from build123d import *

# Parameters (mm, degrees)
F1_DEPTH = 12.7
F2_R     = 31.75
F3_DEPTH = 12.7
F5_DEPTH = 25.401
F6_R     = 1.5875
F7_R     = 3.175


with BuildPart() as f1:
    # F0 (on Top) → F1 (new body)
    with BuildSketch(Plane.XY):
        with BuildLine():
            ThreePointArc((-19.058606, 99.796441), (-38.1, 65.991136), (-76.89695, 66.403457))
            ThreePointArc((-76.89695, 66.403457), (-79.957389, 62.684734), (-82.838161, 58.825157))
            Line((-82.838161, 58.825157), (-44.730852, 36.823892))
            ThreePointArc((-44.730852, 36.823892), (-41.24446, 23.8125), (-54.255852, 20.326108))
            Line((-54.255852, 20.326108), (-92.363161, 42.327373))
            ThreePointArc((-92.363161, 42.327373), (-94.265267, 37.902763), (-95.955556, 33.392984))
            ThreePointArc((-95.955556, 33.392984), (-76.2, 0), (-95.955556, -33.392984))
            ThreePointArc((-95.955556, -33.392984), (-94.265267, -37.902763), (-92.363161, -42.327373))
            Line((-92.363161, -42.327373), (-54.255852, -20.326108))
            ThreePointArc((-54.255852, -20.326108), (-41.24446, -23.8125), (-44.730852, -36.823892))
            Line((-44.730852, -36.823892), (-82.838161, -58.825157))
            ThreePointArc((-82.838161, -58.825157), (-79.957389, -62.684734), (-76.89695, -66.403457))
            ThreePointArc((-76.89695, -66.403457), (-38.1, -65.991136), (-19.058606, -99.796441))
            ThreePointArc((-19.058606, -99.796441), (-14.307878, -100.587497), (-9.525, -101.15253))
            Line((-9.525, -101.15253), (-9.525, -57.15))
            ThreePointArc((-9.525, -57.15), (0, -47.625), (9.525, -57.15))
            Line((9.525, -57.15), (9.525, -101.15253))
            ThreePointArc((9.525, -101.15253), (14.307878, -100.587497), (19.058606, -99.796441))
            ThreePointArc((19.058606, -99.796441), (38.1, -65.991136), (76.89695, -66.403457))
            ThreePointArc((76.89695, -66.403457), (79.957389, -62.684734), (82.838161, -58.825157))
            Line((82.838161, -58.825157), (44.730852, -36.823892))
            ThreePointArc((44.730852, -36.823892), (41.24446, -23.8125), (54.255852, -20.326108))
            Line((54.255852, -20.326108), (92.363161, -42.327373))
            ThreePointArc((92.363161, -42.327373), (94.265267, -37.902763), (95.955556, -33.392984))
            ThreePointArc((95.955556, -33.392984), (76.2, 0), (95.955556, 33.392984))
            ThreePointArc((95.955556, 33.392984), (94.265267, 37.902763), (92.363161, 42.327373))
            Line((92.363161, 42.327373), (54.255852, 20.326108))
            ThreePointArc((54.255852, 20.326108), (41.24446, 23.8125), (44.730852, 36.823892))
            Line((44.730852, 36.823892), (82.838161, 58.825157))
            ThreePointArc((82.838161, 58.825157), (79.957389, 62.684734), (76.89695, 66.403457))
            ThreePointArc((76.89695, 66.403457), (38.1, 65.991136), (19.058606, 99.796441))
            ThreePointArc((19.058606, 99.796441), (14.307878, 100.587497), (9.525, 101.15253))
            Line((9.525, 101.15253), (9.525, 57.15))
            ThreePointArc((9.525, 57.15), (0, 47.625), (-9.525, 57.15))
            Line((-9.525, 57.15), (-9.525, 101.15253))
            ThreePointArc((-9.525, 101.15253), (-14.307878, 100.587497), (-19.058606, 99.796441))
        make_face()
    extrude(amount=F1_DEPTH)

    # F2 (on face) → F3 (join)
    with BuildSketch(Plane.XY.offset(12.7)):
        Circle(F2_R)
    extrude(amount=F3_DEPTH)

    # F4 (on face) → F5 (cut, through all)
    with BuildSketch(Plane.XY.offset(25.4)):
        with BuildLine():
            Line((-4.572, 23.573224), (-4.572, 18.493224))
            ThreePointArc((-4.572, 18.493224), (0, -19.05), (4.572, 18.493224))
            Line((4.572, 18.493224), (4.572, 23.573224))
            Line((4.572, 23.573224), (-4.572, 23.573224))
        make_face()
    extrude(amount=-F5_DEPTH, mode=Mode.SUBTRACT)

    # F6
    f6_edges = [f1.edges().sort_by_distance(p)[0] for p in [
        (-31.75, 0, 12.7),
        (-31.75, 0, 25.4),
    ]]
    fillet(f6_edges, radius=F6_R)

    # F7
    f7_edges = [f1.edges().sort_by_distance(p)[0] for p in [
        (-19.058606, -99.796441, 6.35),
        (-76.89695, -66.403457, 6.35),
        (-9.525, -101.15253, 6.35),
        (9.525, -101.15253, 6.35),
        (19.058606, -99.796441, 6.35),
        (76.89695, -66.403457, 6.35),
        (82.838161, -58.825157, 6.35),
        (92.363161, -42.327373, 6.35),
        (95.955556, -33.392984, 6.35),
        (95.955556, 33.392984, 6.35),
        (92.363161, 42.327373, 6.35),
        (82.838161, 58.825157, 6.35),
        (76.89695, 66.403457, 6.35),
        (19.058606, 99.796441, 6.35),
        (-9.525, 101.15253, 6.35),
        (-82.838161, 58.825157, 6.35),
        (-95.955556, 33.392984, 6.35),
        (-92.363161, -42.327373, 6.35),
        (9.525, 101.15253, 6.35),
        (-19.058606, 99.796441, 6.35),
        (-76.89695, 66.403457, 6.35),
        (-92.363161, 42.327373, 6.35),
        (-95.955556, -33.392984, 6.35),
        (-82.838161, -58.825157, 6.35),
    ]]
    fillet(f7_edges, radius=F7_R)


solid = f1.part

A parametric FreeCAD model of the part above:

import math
import FreeCAD as App
import Part
import Sketcher
from FreeCAD import Vector
Q = App.Units.Quantity


def edges_at(feature, points):
    """Names of the edges that pass closest to the given points."""
    edges = feature.Shape.Edges
    near = lambda p: min(range(len(edges)), key=lambda i: edges[i].distToShape(Part.Vertex(*p))[0])
    return sorted({f"Edge{near(p) + 1}" for p in points})

doc = App.newDocument("Part")
body = doc.addObject("PartDesign::Body", "Body")

sketch1 = body.newObject("Sketcher::SketchObject", "Sketch")
sketch1.AttachmentSupport = (doc.getObject("XY_Plane"), [""])
sketch1.MapMode = "FlatFace"
sketch1.addGeometry([
    Part.ArcOfCircle(Part.Circle(Vector(-57.15, 98.986704, 0), Vector(0, 0, 1), 38.1), math.radians(-121.217795), math.radians(1.217796)),
    Part.ArcOfCircle(Part.Circle(Vector(0.000293, -0.00023, 0), Vector(0, 0, 1), 101.600372), math.radians(139.188147), math.radians(144.620611)),
    Part.LineSegment(Vector(-82.838161, 58.825157, 0), Vector(-44.730852, 36.823892, 0)),
    Part.ArcOfCircle(Part.Circle(Vector(-49.493352, 28.575, 0), Vector(0, 0, 1), 9.525), math.radians(-120), math.radians(60)),
    Part.LineSegment(Vector(-54.255852, 20.326108, 0), Vector(-92.363161, 42.327373, 0)),
    Part.ArcOfCircle(Part.Circle(Vector(0.000225, -0.000096, 0), Vector(0, 0, 1), 101.600244), math.radians(155.379383), math.radians(160.811854)),
    Part.ArcOfCircle(Part.Circle(Vector(-114.3, 0, 0), Vector(0, 0, 1), 38.1), math.radians(-61.217796), math.radians(61.217796)),
    Part.ArcOfCircle(Part.Circle(Vector(0.000225, 0.000096, 0), Vector(0, 0, 1), 101.600244), math.radians(-160.811854), math.radians(-155.379383)),
    Part.LineSegment(Vector(-92.363161, -42.327373, 0), Vector(-54.255852, -20.326108, 0)),
    Part.ArcOfCircle(Part.Circle(Vector(-49.493352, -28.575, 0), Vector(0, 0, 1), 9.525), math.radians(-60), math.radians(120)),
    Part.LineSegment(Vector(-44.730852, -36.823892, 0), Vector(-82.838161, -58.825157, 0)),
    Part.ArcOfCircle(Part.Circle(Vector(0.000293, 0.00023, 0), Vector(0, 0, 1), 101.600372), math.radians(-144.620611), math.radians(-139.188147)),
    Part.ArcOfCircle(Part.Circle(Vector(-57.15, -98.986704, 0), Vector(0, 0, 1), 38.1), math.radians(-1.217796), math.radians(121.217795)),
    Part.ArcOfCircle(Part.Circle(Vector(0.000053, 0.000431, 0), Vector(0, 0, 1), 101.600434), math.radians(-100.811848), math.radians(-95.379386)),
    Part.LineSegment(Vector(-9.525, -101.15253, 0), Vector(-9.525, -57.15, 0)),
    Part.ArcOfCircle(Part.Circle(Vector(0, -57.15, 0), Vector(0, 0, 1), 9.525), math.radians(0), math.radians(180)),
    Part.LineSegment(Vector(9.525, -57.15, 0), Vector(9.525, -101.15253, 0)),
    Part.ArcOfCircle(Part.Circle(Vector(-0.000053, 0.000431, 0), Vector(0, 0, 1), 101.600434), math.radians(-84.620614), math.radians(-79.188152)),
    Part.ArcOfCircle(Part.Circle(Vector(57.15, -98.986704, 0), Vector(0, 0, 1), 38.1), math.radians(58.782205), math.radians(181.217796)),
    Part.ArcOfCircle(Part.Circle(Vector(-0.000293, 0.00023, 0), Vector(0, 0, 1), 101.600372), math.radians(-40.811853), math.radians(-35.379389)),
    Part.LineSegment(Vector(82.838161, -58.825157, 0), Vector(44.730852, -36.823892, 0)),
    Part.ArcOfCircle(Part.Circle(Vector(49.493352, -28.575, 0), Vector(0, 0, 1), 9.525), math.radians(60), math.radians(240)),
    Part.LineSegment(Vector(54.255852, -20.326108, 0), Vector(92.363161, -42.327373, 0)),
    Part.ArcOfCircle(Part.Circle(Vector(-0.000225, 0.000096, 0), Vector(0, 0, 1), 101.600244), math.radians(-24.620617), math.radians(-19.188146)),
    Part.ArcOfCircle(Part.Circle(Vector(114.3, 0, 0), Vector(0, 0, 1), 38.1), math.radians(118.782204), math.radians(241.217796)),
    Part.ArcOfCircle(Part.Circle(Vector(-0.000225, -0.000096, 0), Vector(0, 0, 1), 101.600244), math.radians(19.188146), math.radians(24.620617)),
    Part.LineSegment(Vector(92.363161, 42.327373, 0), Vector(54.255852, 20.326108, 0)),
    Part.ArcOfCircle(Part.Circle(Vector(49.493352, 28.575, 0), Vector(0, 0, 1), 9.525), math.radians(120), math.radians(300)),
    Part.LineSegment(Vector(44.730852, 36.823892, 0), Vector(82.838161, 58.825157, 0)),
    Part.ArcOfCircle(Part.Circle(Vector(-0.000293, -0.00023, 0), Vector(0, 0, 1), 101.600372), math.radians(35.379389), math.radians(40.811853)),
    Part.ArcOfCircle(Part.Circle(Vector(57.15, 98.986704, 0), Vector(0, 0, 1), 38.1), math.radians(178.782204), math.radians(301.217795)),
    Part.ArcOfCircle(Part.Circle(Vector(-0.000053, -0.000431, 0), Vector(0, 0, 1), 101.600434), math.radians(79.188152), math.radians(84.620614)),
    Part.LineSegment(Vector(9.525, 101.15253, 0), Vector(9.525, 57.15, 0)),
    Part.ArcOfCircle(Part.Circle(Vector(0, 57.15, 0), Vector(0, 0, 1), 9.525), math.radians(180), math.radians(360)),
    Part.LineSegment(Vector(-9.525, 57.15, 0), Vector(-9.525, 101.15253, 0)),
    Part.ArcOfCircle(Part.Circle(Vector(0.000053, -0.000431, 0), Vector(0, 0, 1), 101.600434), math.radians(95.379386), math.radians(100.811848)),
], False)
sketch1.addConstraint([
    Sketcher.Constraint("Coincident", 0, 1, 1, 1),
    Sketcher.Constraint("Coincident", 1, 2, 2, 1),
    Sketcher.Constraint("Tangent", 2, 2, 3, 2),
    Sketcher.Constraint("Tangent", 3, 1, 4, 1),
    Sketcher.Constraint("Coincident", 4, 2, 5, 1),
    Sketcher.Constraint("Coincident", 5, 2, 6, 2),
    Sketcher.Constraint("Coincident", 6, 1, 7, 1),
    Sketcher.Constraint("Coincident", 7, 2, 8, 1),
    Sketcher.Constraint("Tangent", 8, 2, 9, 2),
    Sketcher.Constraint("Tangent", 9, 1, 10, 1),
    Sketcher.Constraint("Coincident", 10, 2, 11, 1),
    Sketcher.Constraint("Coincident", 11, 2, 12, 2),
    Sketcher.Constraint("Coincident", 12, 1, 13, 1),
    Sketcher.Constraint("Coincident", 13, 2, 14, 1),
    Sketcher.Constraint("Tangent", 14, 2, 15, 2),
    Sketcher.Constraint("Tangent", 15, 1, 16, 1),
    Sketcher.Constraint("Coincident", 16, 2, 17, 1),
    Sketcher.Constraint("Coincident", 17, 2, 18, 2),
    Sketcher.Constraint("Coincident", 18, 1, 19, 1),
    Sketcher.Constraint("Coincident", 19, 2, 20, 1),
    Sketcher.Constraint("Tangent", 20, 2, 21, 2),
    Sketcher.Constraint("Tangent", 21, 1, 22, 1),
    Sketcher.Constraint("Coincident", 22, 2, 23, 1),
    Sketcher.Constraint("Coincident", 23, 2, 24, 2),
    Sketcher.Constraint("Coincident", 24, 1, 25, 1),
    Sketcher.Constraint("Coincident", 25, 2, 26, 1),
    Sketcher.Constraint("Tangent", 26, 2, 27, 2),
    Sketcher.Constraint("Tangent", 27, 1, 28, 1),
    Sketcher.Constraint("Coincident", 28, 2, 29, 1),
    Sketcher.Constraint("Coincident", 29, 2, 30, 2),
    Sketcher.Constraint("Coincident", 30, 1, 31, 1),
    Sketcher.Constraint("Coincident", 31, 2, 32, 1),
    Sketcher.Constraint("Tangent", 32, 2, 33, 2),
    Sketcher.Constraint("Tangent", 33, 1, 34, 1),
    Sketcher.Constraint("Coincident", 34, 2, 35, 1),
    Sketcher.Constraint("Coincident", 35, 2, 0, 2),
    Sketcher.Constraint("Vertical", 14),
    Sketcher.Constraint("Vertical", 16),
    Sketcher.Constraint("Vertical", 32),
    Sketcher.Constraint("Vertical", 34),
    Sketcher.Constraint("Equal", 0, 6),
    Sketcher.Constraint("Equal", 5, 7),
    Sketcher.Constraint("Equal", 3, 9),
    Sketcher.Constraint("Equal", 1, 11),
    Sketcher.Constraint("Equal", 6, 12),
    Sketcher.Constraint("Equal", 9, 15),
    Sketcher.Constraint("Equal", 13, 17),
    Sketcher.Constraint("Equal", 12, 18),
    Sketcher.Constraint("Equal", 11, 19),
    Sketcher.Constraint("Equal", 15, 21),
    Sketcher.Constraint("Equal", 7, 23),
    Sketcher.Constraint("Equal", 18, 24),
    Sketcher.Constraint("Equal", 23, 25),
    Sketcher.Constraint("Equal", 21, 27),
    Sketcher.Constraint("Equal", 19, 29),
    Sketcher.Constraint("Equal", 24, 30),
    Sketcher.Constraint("Equal", 17, 31),
    Sketcher.Constraint("Equal", 27, 33),
    Sketcher.Constraint("Equal", 31, 35),
    Sketcher.Constraint("Symmetric", 0, 3, 18, 3, -1, 1),
    Sketcher.Constraint("Symmetric", 1, 3, 19, 3, -1, 1),
    Sketcher.Constraint("Symmetric", 3, 3, 21, 3, -1, 1),
    Sketcher.Constraint("Symmetric", 5, 3, 23, 3, -1, 1),
    Sketcher.Constraint("Symmetric", 6, 3, 24, 3, -1, 1),
    Sketcher.Constraint("Symmetric", 7, 3, 25, 3, -1, 1),
    Sketcher.Constraint("Symmetric", 9, 3, 27, 3, -1, 1),
    Sketcher.Constraint("Symmetric", 11, 3, 29, 3, -1, 1),
    Sketcher.Constraint("Symmetric", 12, 3, 30, 3, -1, 1),
    Sketcher.Constraint("Symmetric", 13, 3, 31, 3, -1, 1),
    Sketcher.Constraint("Symmetric", 15, 3, 33, 3, -1, 1),
    Sketcher.Constraint("Symmetric", 17, 3, 35, 3, -1, 1),
    Sketcher.Constraint("Symmetric", 13, 3, 17, 3, -2),
    Sketcher.Constraint("Symmetric", 12, 3, 18, 3, -2),
    Sketcher.Constraint("Symmetric", 11, 3, 19, 3, -2),
    Sketcher.Constraint("Symmetric", 9, 3, 21, 3, -2),
    Sketcher.Constraint("Symmetric", 7, 3, 23, 3, -2),
    Sketcher.Constraint("PointOnObject", 6, 3, -1),
    Sketcher.Constraint("PointOnObject", 15, 3, -2),
    Sketcher.Constraint("Parallel", 2, 4),
    Sketcher.Constraint("Parallel", 8, 10),
    Sketcher.Constraint("Parallel", 4, 20),
    Sketcher.Constraint("Parallel", 20, 22),
    Sketcher.Constraint("Parallel", 10, 26),
    Sketcher.Constraint("Parallel", 26, 28),
    Sketcher.Constraint("Horizontal", 10, 2, 19, 2),
    Sketcher.Constraint("Equal", 2, 4),
    Sketcher.Constraint("Radius", 0, Q("1.5 in")),
    Sketcher.Constraint("Angle", 2, Q("-30 deg")),
    Sketcher.Constraint("Radius", 3, Q("0.375 in")),
    Sketcher.Constraint("DistanceX", 6, 3, -1, 1, Q("4.5 in")),
    Sketcher.Constraint("DistanceX", 12, 3, 18, 3, Q("4.5 in")),
    Sketcher.Constraint("DistanceY", 15, 3, -1, 1, Q("2.25 in")),
    Sketcher.Constraint("DistanceY", 9, 3, 3, 3, Q("2.25 in")),
    Sketcher.Constraint("Radius", 1, 101.600372),
    Sketcher.Constraint("Radius", 5, 101.600244),
    Sketcher.Constraint("Radius", 13, 101.600434),
    Sketcher.Constraint("DistanceX", 11, 2, 12, 1, Q("2.2771002 in")),
    Sketcher.Constraint("DistanceY", 14, 1, 14, 2, 44.00253),
    Sketcher.Constraint("DistanceY", 5, 3, 0, 3, 98.986799),
    Sketcher.Constraint("DistanceY", 11, 3, 13, 3, 0.000201),
    Sketcher.Constraint("DistanceX", 13, 3, 27, 3, 49.493299),
    Sketcher.Constraint("DistanceY", 1, 2, 0, 1, 7.5783),
    Sketcher.Constraint("DistanceX", 11, 2, 9, 1, 32.166098),
])
pad1 = body.newObject("PartDesign::Pad", "Pad")
pad1.Profile = sketch1
pad1.Length = Q("0.5 in")

sketch2 = body.newObject("Sketcher::SketchObject", "Sketch001")
sketch2.AttachmentSupport = (doc.getObject("XY_Plane"), [""])
sketch2.MapMode = "FlatFace"
sketch2.AttachmentOffset = App.Placement(Vector(0, 0, 0.5 * 25.4), App.Rotation())
sketch2.addGeometry(Part.Circle(Vector(0, 0, 0), Vector(0, 0, 1), 32), False)
sketch2.addConstraint([
    Sketcher.Constraint("Coincident", 0, 3, -1, 1),
    Sketcher.Constraint("Diameter", 0, Q("2.5 in")),
])
pad2 = body.newObject("PartDesign::Pad", "Pad001")
pad2.Profile = sketch2
pad2.Length = Q("0.5 in")

sketch3 = body.newObject("Sketcher::SketchObject", "Sketch002")
sketch3.AttachmentSupport = (doc.getObject("XY_Plane"), [""])
sketch3.MapMode = "FlatFace"
sketch3.AttachmentOffset = App.Placement(Vector(0, 0, 1 * 25.4), App.Rotation())
sketch3.addGeometry([
    Part.LineSegment(Vector(-5, 24, 0), Vector(-5, 18, 0)),
    Part.ArcOfCircle(Part.Circle(Vector(0, 0, 0), Vector(0, 0, 1), 19), math.radians(104), math.radians(436)),
    Part.LineSegment(Vector(5, 18, 0), Vector(5, 24, 0)),
    Part.LineSegment(Vector(5, 24, 0), Vector(-5, 24, 0)),
], False)
sketch3.addConstraint([
    Sketcher.Constraint("Coincident", 0, 2, 1, 1),
    Sketcher.Constraint("Coincident", 1, 2, 2, 1),
    Sketcher.Constraint("Coincident", 2, 2, 3, 1),
    Sketcher.Constraint("Coincident", 3, 2, 0, 1),
    Sketcher.Constraint("Vertical", 0),
    Sketcher.Constraint("Vertical", 2),
    Sketcher.Constraint("Horizontal", 3),
    Sketcher.Constraint("Coincident", 1, 3, -1, 1),
    Sketcher.Constraint("Horizontal", 0, 2, 1, 2),
    Sketcher.Constraint("Radius", 1, Q("0.75 in")),
    Sketcher.Constraint("DistanceY", 0, 2, 0, 1, Q("0.2 in")),
    Sketcher.Constraint("DistanceX", 3, 2, 3, 1, Q("0.36 in")),
])
pocket1 = body.newObject("PartDesign::Pocket", "Pocket")
pocket1.Profile = sketch3
pocket1.Type = "ThroughAll"
doc.recompute()

fillet = body.newObject("PartDesign::Fillet", "Fillet")
fillet.Base = (pocket1, edges_at(pocket1, [(-31.75, 0, 12.7), (-31.75, 0, 25.4)]))
fillet.Radius = Q("0.0625 in")
doc.recompute()

fillet2 = body.newObject("PartDesign::Fillet", "Fillet001")
fillet2.Base = (fillet, edges_at(fillet, [
    (-19.059, -99.796, 6.35),
    (-76.897, -66.403, 6.35),
    (-9.525, -101.153, 6.35),
    (9.525, -101.153, 6.35),
    (19.059, -99.796, 6.35),
    (76.897, -66.403, 6.35),
    (82.838, -58.825, 6.35),
    (92.363, -42.327, 6.35),
    (95.956, -33.393, 6.35),
    (95.956, 33.393, 6.35),
    (92.363, 42.327, 6.35),
    (82.838, 58.825, 6.35),
    (76.897, 66.403, 6.35),
    (19.059, 99.796, 6.35),
    (-9.525, 101.153, 6.35),
    (-82.838, 58.825, 6.35),
    (-95.956, 33.393, 6.35),
    (-92.363, -42.327, 6.35),
    (9.525, 101.153, 6.35),
    (-19.059, 99.796, 6.35),
    (-76.897, 66.403, 6.35),
    (-92.363, 42.327, 6.35),
    (-95.956, -33.393, 6.35),
    (-82.838, -58.825, 6.35),
]))
fillet2.Radius = Q("0.125 in")

doc.recompute()
